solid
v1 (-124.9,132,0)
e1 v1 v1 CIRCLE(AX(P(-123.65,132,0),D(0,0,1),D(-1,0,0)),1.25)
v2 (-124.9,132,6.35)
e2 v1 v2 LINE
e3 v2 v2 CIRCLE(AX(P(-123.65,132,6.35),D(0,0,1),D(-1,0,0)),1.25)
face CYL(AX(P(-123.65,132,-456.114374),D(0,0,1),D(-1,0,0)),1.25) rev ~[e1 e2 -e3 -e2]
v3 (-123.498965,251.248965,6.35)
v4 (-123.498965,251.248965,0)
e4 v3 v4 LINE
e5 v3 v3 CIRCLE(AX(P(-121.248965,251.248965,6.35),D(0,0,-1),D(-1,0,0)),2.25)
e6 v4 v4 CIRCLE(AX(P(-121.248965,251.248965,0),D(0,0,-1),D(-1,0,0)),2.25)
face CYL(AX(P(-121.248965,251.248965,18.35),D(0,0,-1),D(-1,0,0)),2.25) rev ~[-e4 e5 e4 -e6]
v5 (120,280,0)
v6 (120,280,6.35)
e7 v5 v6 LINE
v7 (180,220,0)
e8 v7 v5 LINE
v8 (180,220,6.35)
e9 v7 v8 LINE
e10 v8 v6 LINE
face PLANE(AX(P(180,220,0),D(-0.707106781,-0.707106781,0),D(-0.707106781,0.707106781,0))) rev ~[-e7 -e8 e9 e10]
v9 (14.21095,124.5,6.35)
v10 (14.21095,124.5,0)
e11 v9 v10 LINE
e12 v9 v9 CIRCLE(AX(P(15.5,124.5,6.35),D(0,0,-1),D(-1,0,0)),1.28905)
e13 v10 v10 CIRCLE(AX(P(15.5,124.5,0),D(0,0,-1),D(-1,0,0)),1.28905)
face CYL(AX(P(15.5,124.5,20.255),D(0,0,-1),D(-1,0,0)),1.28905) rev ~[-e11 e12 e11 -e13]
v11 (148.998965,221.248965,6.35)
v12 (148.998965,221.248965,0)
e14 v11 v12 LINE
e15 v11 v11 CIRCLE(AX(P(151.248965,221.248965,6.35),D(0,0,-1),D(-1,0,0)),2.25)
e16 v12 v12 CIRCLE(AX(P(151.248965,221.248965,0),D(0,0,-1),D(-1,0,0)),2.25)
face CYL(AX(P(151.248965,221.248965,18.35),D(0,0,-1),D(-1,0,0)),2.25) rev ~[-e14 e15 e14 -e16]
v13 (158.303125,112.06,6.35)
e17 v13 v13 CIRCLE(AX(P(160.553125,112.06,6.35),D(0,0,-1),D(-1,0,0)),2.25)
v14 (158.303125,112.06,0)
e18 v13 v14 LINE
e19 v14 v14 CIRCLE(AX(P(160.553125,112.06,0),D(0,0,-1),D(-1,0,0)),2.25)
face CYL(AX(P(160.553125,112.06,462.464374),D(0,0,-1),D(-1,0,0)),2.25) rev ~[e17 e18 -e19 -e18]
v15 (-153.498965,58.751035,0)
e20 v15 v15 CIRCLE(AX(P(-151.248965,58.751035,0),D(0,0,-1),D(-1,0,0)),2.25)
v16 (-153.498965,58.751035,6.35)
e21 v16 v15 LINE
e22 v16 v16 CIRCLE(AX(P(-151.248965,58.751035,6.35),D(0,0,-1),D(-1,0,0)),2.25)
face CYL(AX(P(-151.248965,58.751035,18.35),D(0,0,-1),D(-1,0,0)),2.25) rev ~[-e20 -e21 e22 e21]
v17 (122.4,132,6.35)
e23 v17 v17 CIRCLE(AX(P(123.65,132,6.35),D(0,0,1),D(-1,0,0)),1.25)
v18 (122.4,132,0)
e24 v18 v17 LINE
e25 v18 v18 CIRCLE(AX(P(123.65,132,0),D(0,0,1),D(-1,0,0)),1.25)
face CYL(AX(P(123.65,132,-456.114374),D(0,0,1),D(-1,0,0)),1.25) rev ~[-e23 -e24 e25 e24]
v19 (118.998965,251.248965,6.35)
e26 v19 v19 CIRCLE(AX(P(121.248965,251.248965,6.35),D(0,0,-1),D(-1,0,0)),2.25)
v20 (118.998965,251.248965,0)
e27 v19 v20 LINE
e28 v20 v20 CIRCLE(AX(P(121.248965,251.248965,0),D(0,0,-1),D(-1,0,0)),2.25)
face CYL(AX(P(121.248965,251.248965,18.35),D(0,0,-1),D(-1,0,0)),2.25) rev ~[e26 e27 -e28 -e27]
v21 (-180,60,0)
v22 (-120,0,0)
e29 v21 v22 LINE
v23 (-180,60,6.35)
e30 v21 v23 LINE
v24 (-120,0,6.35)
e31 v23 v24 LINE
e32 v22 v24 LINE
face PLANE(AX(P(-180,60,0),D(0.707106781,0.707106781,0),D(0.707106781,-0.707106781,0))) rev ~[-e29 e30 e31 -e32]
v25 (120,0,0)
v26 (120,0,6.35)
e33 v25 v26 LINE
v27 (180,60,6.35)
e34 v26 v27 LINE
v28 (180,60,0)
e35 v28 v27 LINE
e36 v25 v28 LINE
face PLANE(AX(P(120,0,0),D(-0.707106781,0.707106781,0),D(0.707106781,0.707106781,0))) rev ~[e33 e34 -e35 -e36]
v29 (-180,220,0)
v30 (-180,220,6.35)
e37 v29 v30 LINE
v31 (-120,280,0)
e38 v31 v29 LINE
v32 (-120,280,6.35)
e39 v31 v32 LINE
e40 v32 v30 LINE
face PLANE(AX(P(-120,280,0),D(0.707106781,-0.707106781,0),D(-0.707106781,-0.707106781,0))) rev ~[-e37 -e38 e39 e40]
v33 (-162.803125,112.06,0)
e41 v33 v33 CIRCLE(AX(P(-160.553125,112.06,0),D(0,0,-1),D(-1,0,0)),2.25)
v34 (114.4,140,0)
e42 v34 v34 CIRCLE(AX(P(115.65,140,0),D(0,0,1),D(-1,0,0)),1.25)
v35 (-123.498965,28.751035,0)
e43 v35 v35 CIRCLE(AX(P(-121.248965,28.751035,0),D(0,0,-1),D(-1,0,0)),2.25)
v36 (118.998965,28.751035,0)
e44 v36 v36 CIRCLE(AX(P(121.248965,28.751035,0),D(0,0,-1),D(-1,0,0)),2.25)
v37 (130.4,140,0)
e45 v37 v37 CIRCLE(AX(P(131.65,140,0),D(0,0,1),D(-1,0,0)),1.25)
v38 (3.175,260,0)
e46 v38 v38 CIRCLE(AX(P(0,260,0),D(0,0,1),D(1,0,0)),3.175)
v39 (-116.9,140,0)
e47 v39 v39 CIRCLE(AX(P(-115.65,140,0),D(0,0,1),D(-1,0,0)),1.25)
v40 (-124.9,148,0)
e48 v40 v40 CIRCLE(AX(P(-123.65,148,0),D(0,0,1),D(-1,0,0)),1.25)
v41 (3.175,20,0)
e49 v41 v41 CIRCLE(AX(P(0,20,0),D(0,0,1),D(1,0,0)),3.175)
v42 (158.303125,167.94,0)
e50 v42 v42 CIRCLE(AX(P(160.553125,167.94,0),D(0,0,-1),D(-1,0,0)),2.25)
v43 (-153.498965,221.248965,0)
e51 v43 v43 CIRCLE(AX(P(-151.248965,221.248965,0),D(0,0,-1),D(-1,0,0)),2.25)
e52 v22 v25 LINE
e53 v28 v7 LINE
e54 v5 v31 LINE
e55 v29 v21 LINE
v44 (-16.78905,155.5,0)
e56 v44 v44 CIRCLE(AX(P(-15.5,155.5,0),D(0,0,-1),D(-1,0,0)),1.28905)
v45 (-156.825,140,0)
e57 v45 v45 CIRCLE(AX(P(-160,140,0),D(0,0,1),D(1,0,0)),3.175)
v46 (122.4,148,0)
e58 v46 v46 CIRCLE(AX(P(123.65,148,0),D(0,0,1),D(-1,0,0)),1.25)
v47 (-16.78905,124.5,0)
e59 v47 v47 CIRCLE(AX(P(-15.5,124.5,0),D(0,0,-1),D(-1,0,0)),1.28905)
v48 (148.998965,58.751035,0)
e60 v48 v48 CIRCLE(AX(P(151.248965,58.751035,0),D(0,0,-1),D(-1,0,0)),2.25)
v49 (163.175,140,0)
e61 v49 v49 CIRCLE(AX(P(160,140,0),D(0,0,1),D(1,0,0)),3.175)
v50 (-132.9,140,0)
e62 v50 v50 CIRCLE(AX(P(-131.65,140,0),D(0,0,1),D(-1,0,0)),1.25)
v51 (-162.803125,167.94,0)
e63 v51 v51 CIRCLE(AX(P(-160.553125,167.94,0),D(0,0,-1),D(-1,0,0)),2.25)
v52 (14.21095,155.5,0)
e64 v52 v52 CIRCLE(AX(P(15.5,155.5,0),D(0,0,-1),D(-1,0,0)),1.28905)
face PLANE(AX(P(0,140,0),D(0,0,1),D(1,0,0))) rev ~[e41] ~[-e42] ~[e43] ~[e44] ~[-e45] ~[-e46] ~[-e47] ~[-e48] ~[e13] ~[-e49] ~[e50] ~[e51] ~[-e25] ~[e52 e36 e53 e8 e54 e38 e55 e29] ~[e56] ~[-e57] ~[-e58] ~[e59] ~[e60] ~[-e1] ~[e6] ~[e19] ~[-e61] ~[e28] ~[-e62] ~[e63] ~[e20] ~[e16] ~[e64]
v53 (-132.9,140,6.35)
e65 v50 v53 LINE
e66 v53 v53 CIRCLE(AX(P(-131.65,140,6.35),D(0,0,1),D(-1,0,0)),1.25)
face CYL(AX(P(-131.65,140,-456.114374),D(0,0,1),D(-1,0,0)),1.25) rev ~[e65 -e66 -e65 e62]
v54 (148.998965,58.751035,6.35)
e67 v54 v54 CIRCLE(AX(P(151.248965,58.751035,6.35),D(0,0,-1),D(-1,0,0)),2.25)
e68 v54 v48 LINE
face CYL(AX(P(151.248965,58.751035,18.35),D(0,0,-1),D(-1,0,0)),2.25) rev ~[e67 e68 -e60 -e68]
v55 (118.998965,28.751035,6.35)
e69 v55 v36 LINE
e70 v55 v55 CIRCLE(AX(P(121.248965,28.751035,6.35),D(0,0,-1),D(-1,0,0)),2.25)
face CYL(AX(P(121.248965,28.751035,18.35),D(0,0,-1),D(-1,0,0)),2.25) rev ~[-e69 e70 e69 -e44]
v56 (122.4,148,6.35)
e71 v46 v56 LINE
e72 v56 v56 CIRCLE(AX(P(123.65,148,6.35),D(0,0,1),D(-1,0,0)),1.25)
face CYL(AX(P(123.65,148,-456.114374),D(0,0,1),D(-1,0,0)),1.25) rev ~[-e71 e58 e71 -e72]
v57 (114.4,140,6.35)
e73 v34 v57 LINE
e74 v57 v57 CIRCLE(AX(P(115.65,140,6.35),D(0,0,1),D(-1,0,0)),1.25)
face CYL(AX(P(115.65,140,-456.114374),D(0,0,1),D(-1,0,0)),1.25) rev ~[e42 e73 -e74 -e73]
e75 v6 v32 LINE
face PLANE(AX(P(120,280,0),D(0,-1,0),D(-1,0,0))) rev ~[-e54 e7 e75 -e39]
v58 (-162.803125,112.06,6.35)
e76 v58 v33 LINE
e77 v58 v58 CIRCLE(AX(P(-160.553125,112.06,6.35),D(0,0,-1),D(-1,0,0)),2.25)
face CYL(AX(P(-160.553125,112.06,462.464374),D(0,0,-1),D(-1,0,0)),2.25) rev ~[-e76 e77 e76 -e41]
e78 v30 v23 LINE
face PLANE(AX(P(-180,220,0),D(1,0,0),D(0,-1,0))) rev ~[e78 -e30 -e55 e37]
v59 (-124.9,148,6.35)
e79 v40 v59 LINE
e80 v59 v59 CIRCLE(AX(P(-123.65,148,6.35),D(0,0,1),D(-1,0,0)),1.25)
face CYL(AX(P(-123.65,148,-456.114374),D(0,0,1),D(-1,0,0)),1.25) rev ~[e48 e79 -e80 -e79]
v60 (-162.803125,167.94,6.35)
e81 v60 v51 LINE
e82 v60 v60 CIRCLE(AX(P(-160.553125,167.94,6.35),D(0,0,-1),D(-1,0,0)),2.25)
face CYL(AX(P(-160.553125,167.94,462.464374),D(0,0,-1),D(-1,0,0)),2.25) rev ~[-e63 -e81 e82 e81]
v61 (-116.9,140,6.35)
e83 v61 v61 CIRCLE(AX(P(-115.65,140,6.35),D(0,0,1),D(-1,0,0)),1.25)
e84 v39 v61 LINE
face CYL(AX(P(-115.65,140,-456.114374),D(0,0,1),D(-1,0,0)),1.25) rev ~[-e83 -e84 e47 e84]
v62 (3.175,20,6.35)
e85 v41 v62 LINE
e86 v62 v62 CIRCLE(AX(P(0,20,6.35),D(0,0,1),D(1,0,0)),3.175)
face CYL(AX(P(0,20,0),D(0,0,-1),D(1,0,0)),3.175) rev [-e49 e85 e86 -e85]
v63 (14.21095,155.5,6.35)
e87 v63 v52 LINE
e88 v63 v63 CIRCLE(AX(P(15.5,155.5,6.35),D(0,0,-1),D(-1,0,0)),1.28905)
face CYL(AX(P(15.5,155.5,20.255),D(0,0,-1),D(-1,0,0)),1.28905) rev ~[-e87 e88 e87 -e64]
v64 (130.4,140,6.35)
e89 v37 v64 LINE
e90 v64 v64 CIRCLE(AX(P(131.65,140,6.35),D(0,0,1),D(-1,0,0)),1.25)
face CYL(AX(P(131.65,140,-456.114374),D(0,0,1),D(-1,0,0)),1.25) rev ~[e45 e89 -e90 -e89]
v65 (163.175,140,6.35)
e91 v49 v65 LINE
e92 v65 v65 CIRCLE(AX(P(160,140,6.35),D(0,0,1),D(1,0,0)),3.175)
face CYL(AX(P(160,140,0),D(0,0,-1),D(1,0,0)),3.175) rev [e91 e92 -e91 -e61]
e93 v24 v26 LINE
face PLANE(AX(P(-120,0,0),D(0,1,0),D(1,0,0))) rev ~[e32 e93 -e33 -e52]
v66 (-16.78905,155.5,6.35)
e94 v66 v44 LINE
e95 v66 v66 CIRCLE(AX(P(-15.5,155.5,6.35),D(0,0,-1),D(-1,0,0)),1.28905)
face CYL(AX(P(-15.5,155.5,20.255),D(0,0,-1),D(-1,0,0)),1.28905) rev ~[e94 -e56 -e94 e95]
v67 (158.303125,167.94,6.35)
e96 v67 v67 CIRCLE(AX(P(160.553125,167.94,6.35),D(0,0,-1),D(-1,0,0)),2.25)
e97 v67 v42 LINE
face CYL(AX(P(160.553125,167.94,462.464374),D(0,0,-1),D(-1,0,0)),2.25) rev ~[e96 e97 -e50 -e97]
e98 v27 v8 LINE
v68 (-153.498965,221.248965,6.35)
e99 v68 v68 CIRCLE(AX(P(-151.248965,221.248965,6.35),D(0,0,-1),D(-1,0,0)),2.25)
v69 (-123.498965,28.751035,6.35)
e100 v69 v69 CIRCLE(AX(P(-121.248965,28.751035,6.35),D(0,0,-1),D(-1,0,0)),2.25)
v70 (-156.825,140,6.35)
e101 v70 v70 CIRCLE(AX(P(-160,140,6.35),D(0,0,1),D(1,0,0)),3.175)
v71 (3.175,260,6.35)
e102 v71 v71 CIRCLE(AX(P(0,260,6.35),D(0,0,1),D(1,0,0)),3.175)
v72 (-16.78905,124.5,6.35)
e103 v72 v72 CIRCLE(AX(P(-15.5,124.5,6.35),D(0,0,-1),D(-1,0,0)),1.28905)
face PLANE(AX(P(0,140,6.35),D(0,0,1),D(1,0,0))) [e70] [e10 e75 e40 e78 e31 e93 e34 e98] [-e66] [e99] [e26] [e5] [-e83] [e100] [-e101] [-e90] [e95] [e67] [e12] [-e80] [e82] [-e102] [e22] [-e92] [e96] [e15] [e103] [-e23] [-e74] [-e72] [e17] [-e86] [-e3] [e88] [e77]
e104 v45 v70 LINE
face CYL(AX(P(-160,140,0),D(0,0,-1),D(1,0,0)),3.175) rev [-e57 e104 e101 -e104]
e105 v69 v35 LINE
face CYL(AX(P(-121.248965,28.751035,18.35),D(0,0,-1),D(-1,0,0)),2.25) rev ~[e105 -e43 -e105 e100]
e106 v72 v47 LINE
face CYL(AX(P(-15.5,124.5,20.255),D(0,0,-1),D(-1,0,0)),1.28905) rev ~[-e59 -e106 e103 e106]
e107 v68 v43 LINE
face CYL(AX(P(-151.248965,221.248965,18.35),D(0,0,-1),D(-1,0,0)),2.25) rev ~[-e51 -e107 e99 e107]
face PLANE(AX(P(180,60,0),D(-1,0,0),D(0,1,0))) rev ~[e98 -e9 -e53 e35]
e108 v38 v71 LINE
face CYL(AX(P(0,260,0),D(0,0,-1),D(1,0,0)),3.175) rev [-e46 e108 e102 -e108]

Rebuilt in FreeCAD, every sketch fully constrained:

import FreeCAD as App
import Part
import Sketcher
from FreeCAD import Vector
Q = App.Units.Quantity


def add_polygon(sketch, points):
    """Adds a closed chain of lines whose ends are joined by coincident constraints."""
    first, n = sketch.GeometryCount, len(points)
    for a, b in zip(points, points[1:] + points[:1]):
        sketch.addGeometry(Part.LineSegment(App.Vector(*a, 0), App.Vector(*b, 0)), False)
    for i in range(n):
        sketch.addConstraint(Sketcher.Constraint("Coincident", first + i, 2, first + (i + 1) % n, 1))

doc = App.newDocument("Part")
body = doc.addObject("PartDesign::Body", "Body")

# Sketch on XY plane
sketch1 = body.newObject("Sketcher::SketchObject", "Sketch")
sketch1.AttachmentSupport = (doc.getObject("XY_Plane"), [""])
sketch1.MapMode = "FlatFace"
add_polygon(sketch1, [(-180, 60), (-120, 0), (120, 0), (180, 60), (180, 220), (120, 280), (-120, 280), (-180, 220)])  # lines 0-7
sketch1.addGeometry(Part.Circle(Vector(0, 20, 0), Vector(0, 0, 1), 3.2), False)  # 8
sketch1.addGeometry(Part.Circle(Vector(-160, 140, 0), Vector(0, 0, 1), 3.2), False)  # 9
sketch1.addGeometry(Part.Circle(Vector(160, 140, 0), Vector(0, 0, 1), 3.2), False)  # 10
sketch1.addGeometry(Part.Circle(Vector(0, 260, 0), Vector(0, 0, 1), 3.2), False)  # 11
sketch1.addConstraint(Sketcher.Constraint("Horizontal", 1))
sketch1.addConstraint(Sketcher.Constraint("Vertical", 3))
sketch1.addConstraint(Sketcher.Constraint("Horizontal", 5))
sketch1.addConstraint(Sketcher.Constraint("Vertical", 7))
sketch1.addConstraint(Sketcher.Constraint("Equal", 8, 9))
sketch1.addConstraint(Sketcher.Constraint("Equal", 9, 10))
sketch1.addConstraint(Sketcher.Constraint("Equal", 10, 11))
sketch1.addConstraint(Sketcher.Constraint("Symmetric", 0, 2, 1, 2, -1, 1))
sketch1.addConstraint(Sketcher.Constraint("Symmetric", 9, 3, 10, 3, -2))
sketch1.addConstraint(Sketcher.Constraint("Symmetric", 3, 2, 6, 2, -2))
sketch1.addConstraint(Sketcher.Constraint("PointOnObject", 8, 3, -2))
sketch1.addConstraint(Sketcher.Constraint("PointOnObject", 11, 3, -2))
sketch1.addConstraint(Sketcher.Constraint("Perpendicular", 0, 2))
sketch1.addConstraint(Sketcher.Constraint("Perpendicular", 2, 4))
sketch1.addConstraint(Sketcher.Constraint("Perpendicular", 4, 6))
sketch1.addConstraint(Sketcher.Constraint("Horizontal", 2, 2, 7, 2))
sketch1.addConstraint(Sketcher.Constraint("Vertical", 1, 2, 4, 2))
sketch1.addConstraint(Sketcher.Constraint("Diameter", 8, Q("6.35 mm")))
sketch1.addConstraint(Sketcher.Constraint("DistanceX", 1, 1, 1, 2, Q("240 mm")))
sketch1.addConstraint(Sketcher.Constraint("DistanceY", 3, 1, 3, 2, Q("160 mm")))
sketch1.addConstraint(Sketcher.Constraint("DistanceY", -1, 1, 8, 3, Q("20 mm")))
sketch1.addConstraint(Sketcher.Constraint("DistanceX", 9, 3, -1, 1, Q("160 mm")))
sketch1.addConstraint(Sketcher.Constraint("DistanceY", -1, 1, 9, 3, Q("140 mm")))
sketch1.addConstraint(Sketcher.Constraint("DistanceY", -1, 1, 11, 3, Q("260 mm")))
sketch1.addConstraint(Sketcher.Constraint("DistanceX", -1, 1, 2, 2, Q("180 mm")))
pad1 = body.newObject("PartDesign::Pad", "Pad")
pad1.Profile = sketch1
pad1.Length = 6.35

# Sketch on XY plane
sketch2 = body.newObject("Sketcher::SketchObject", "Sketch001")
sketch2.AttachmentSupport = (doc.getObject("XY_Plane"), [""])
sketch2.MapMode = "FlatFace"
sketch2.AttachmentOffset = App.Placement(Vector(0, 0, 6.35), App.Rotation())
sketch2.addGeometry(Part.Circle(Vector(-15.5, 155.5, 0), Vector(0, 0, 1), 1.3), False)
sketch2.addGeometry(Part.Circle(Vector(15.5, 155.5, 0), Vector(0, 0, 1), 1.3), False)
sketch2.addGeometry(Part.Circle(Vector(15.5, 124.5, 0), Vector(0, 0, 1), 1.3), False)
sketch2.addGeometry(Part.Circle(Vector(-15.5, 124.5, 0), Vector(0, 0, 1), 1.3), False)
sketch2.addConstraint(Sketcher.Constraint("Equal", 0, 1))
sketch2.addConstraint(Sketcher.Constraint("Equal", 1, 2))
sketch2.addConstraint(Sketcher.Constraint("Equal", 2, 3))
sketch2.addConstraint(Sketcher.Constraint("Symmetric", 0, 3, 1, 3, -2))
sketch2.addConstraint(Sketcher.Constraint("Symmetric", 2, 3, 3, 3, -2))
sketch2.addConstraint(Sketcher.Constraint("Vertical", 1, 3, 2, 3))
sketch2.addConstraint(Sketcher.Constraint("DistanceX", 0, 3, 1, 3, Q("31 mm")))
sketch2.addConstraint(Sketcher.Constraint("DistanceY", 2, 3, 1, 3, Q("31 mm")))
sketch2.addConstraint(Sketcher.Constraint("Diameter", 0, Q("2.5781 mm")))
sketch2.addConstraint(Sketcher.Constraint("DistanceY", -1, 1, 0, 3, Q("155.5 mm")))
doc.recompute()
hole = body.newObject("PartDesign::Hole", "Hole")
hole.Profile = sketch2
hole.ThreadType = "None"
hole.Diameter = 2.5781
hole.DepthType = "Dimension"
hole.Depth = 13.905
hole.DrillPoint = "Angled"
hole.DrillPointAngle = 118

# Sketch on XY plane
sketch3 = body.newObject("Sketcher::SketchObject", "Sketch002")
sketch3.AttachmentSupport = (doc.getObject("XY_Plane"), [""])
sketch3.MapMode = "FlatFace"
sketch3.AttachmentOffset = App.Placement(Vector(0, 0, 6.35), App.Rotation())
sketch3.addGeometry(Part.Circle(Vector(-160.6, 167.9, 0), Vector(0, 0, 1), 2.2), False)
sketch3.addGeometry(Part.Circle(Vector(-160.6, 112.1, 0), Vector(0, 0, 1), 2.2), False)
sketch3.addGeometry(Part.Circle(Vector(160.6, 112.1, 0), Vector(0, 0, 1), 2.2), False)
sketch3.addGeometry(Part.Circle(Vector(160.6, 167.9, 0), Vector(0, 0, 1), 2.2), False)
sketch3.addConstraint(Sketcher.Constraint("Equal", 0, 1))
sketch3.addConstraint(Sketcher.Constraint("Equal", 1, 2))
sketch3.addConstraint(Sketcher.Constraint("Equal", 2, 3))
sketch3.addConstraint(Sketcher.Constraint("Symmetric", 1, 3, 2, 3, -2))
sketch3.addConstraint(Sketcher.Constraint("Symmetric", 0, 3, 3, 3, -2))
sketch3.addConstraint(Sketcher.Constraint("Vertical", 0, 3, 1, 3))
sketch3.addConstraint(Sketcher.Constraint("Diameter", 0, Q("4.5 mm")))
sketch3.addConstraint(Sketcher.Constraint("DistanceY", -1, 1, 0, 3, Q("167.94 mm")))
sketch3.addConstraint(Sketcher.Constraint("DistanceY", -1, 1, 1, 3, Q("112.06 mm")))
sketch3.addConstraint(Sketcher.Constraint("DistanceX", 1, 3, 2, 3, Q("321.10625 mm")))
doc.recompute()
hole2 = body.newObject("PartDesign::Hole", "Hole001")
hole2.Profile = sketch3
hole2.ThreadType = "None"
hole2.Diameter = 4.5
hole2.DepthType = "ThroughAll"

# Sketch on XY plane
sketch4 = body.newObject("Sketcher::SketchObject", "Sketch003")
sketch4.AttachmentSupport = (doc.getObject("XY_Plane"), [""])
sketch4.MapMode = "FlatFace"
sketch4.AttachmentOffset = App.Placement(Vector(0, 0, 6.35), App.Rotation())
sketch4.addGeometry(Part.Circle(Vector(-151.2, 221.2, 0), Vector(0, 0, 1), 2.2), False)
sketch4.addGeometry(Part.Circle(Vector(-121.2, 251.2, 0), Vector(0, 0, 1), 2.2), False)
sketch4.addConstraint(Sketcher.Constraint("Equal", 0, 1))
sketch4.addConstraint(Sketcher.Constraint("Diameter", 0, Q("4.5 mm")))
sketch4.addConstraint(Sketcher.Constraint("DistanceX", 0, 3, 1, 3, Q("30 mm")))
sketch4.addConstraint(Sketcher.Constraint("DistanceY", 0, 3, 1, 3, Q("30 mm")))
sketch4.addConstraint(Sketcher.Constraint("DistanceX", 0, 3, -1, 1, Q("151.248965 mm")))
sketch4.addConstraint(Sketcher.Constraint("DistanceY", -1, 1, 0, 3, Q("221.248965 mm")))
doc.recompute()
hole3 = body.newObject("PartDesign::Hole", "Hole002")
hole3.Profile = sketch4
hole3.ThreadType = "None"
hole3.Diameter = 4.5
hole3.DepthType = "Dimension"
hole3.Depth = 12
hole3.DrillPoint = "Angled"
hole3.DrillPointAngle = 118

# Sketch on XY plane
sketch5 = body.newObject("Sketcher::SketchObject", "Sketch004")
sketch5.AttachmentSupport = (doc.getObject("XY_Plane"), [""])
sketch5.MapMode = "FlatFace"
sketch5.AttachmentOffset = App.Placement(Vector(0, 0, 6.35), App.Rotation())
sketch5.addGeometry(Part.Circle(Vector(121.2, 251.2, 0), Vector(0, 0, 1), 2.2), False)
sketch5.addGeometry(Part.Circle(Vector(151.2, 221.2, 0), Vector(0, 0, 1), 2.2), False)
sketch5.addGeometry(Part.Circle(Vector(-151.2, 58.8, 0), Vector(0, 0, 1), 2.2), False)
sketch5.addGeometry(Part.Circle(Vector(-121.2, 28.8, 0), Vector(0, 0, 1), 2.2), False)
sketch5.addGeometry(Part.Circle(Vector(121.2, 28.8, 0), Vector(0, 0, 1), 2.2), False)
sketch5.addGeometry(Part.Circle(Vector(151.2, 58.8, 0), Vector(0, 0, 1), 2.2), False)
sketch5.addConstraint(Sketcher.Constraint("Equal", 0, 1))
sketch5.addConstraint(Sketcher.Constraint("Equal", 1, 2))
sketch5.addConstraint(Sketcher.Constraint("Equal", 2, 3))
sketch5.addConstraint(Sketcher.Constraint("Equal", 3, 4))
sketch5.addConstraint(Sketcher.Constraint("Equal", 4, 5))
sketch5.addConstraint(Sketcher.Constraint("Symmetric", 3, 3, 4, 3, -2))
sketch5.addConstraint(Sketcher.Constraint("Symmetric", 2, 3, 5, 3, -2))
sketch5.addConstraint(Sketcher.Constraint("Vertical", 0, 3, 4, 3))
sketch5.addConstraint(Sketcher.Constraint("Vertical", 1, 3, 5, 3))
sketch5.addConstraint(Sketcher.Constraint("Diameter", 0, Q("4.5 mm")))
sketch5.addConstraint(Sketcher.Constraint("DistanceX", 0, 3, 1, 3, Q("30 mm")))
sketch5.addConstraint(Sketcher.Constraint("DistanceY", 1, 3, 0, 3, Q("30 mm")))
sketch5.addConstraint(Sketcher.Constraint("DistanceY", 3, 3, 2, 3, Q("30 mm")))
sketch5.addConstraint(Sketcher.Constraint("DistanceX", 2, 3, 0, 3, Q("272.49793 mm")))
sketch5.addConstraint(Sketcher.Constraint("DistanceY", 2, 3, 0, 3, Q("192.49793 mm")))
sketch5.addConstraint(Sketcher.Constraint("DistanceY", -1, 1, 0, 3, Q("251.248965 mm")))
doc.recompute()
hole4 = body.newObject("PartDesign::Hole", "Hole003")
hole4.Profile = sketch5
hole4.ThreadType = "None"
hole4.Diameter = 4.5
hole4.DepthType = "Dimension"
hole4.Depth = 12
hole4.DrillPoint = "Angled"
hole4.DrillPointAngle = 118

# Sketch on XY plane
sketch6 = body.newObject("Sketcher::SketchObject", "Sketch005")
sketch6.AttachmentSupport = (doc.getObject("XY_Plane"), [""])
sketch6.MapMode = "FlatFace"
sketch6.addGeometry(Part.Circle(Vector(-123.7, 148, 0), Vector(0, 0, 1), 1.2), False)
sketch6.addGeometry(Part.Circle(Vector(-115.7, 140, 0), Vector(0, 0, 1), 1.2), False)
sketch6.addGeometry(Part.Circle(Vector(-123.7, 132, 0), Vector(0, 0, 1), 1.2), False)
sketch6.addGeometry(Part.Circle(Vector(-131.7, 140, 0), Vector(0, 0, 1), 1.2), False)
sketch6.addGeometry(Part.Circle(Vector(123.7, 148, 0), Vector(0, 0, 1), 1.2), False)
sketch6.addGeometry(Part.Circle(Vector(131.7, 140, 0), Vector(0, 0, 1), 1.2), False)
sketch6.addGeometry(Part.Circle(Vector(115.7, 140, 0), Vector(0, 0, 1), 1.2), False)
sketch6.addGeometry(Part.Circle(Vector(123.7, 132, 0), Vector(0, 0, 1), 1.2), False)
sketch6.addConstraint(Sketcher.Constraint("Equal", 0, 1))
sketch6.addConstraint(Sketcher.Constraint("Equal", 1, 2))
sketch6.addConstraint(Sketcher.Constraint("Equal", 2, 3))
sketch6.addConstraint(Sketcher.Constraint("Equal", 3, 4))
sketch6.addConstraint(Sketcher.Constraint("Equal", 4, 5))
sketch6.addConstraint(Sketcher.Constraint("Equal", 5, 6))
sketch6.addConstraint(Sketcher.Constraint("Equal", 6, 7))
sketch6.addConstraint(Sketcher.Constraint("Symmetric", 0, 3, 4, 3, -2))
sketch6.addConstraint(Sketcher.Constraint("Symmetric", 3, 3, 5, 3, -2))
sketch6.addConstraint(Sketcher.Constraint("Symmetric", 1, 3, 6, 3, -2))
sketch6.addConstraint(Sketcher.Constraint("Symmetric", 2, 3, 7, 3, -2))
sketch6.addConstraint(Sketcher.Constraint("Horizontal", 1, 3, 3, 3))
sketch6.addConstraint(Sketcher.Constraint("Vertical", 0, 3, 2, 3))
sketch6.addConstraint(Sketcher.Constraint("Diameter", 0, Q("2.5 mm")))
sketch6.addConstraint(Sketcher.Constraint("DistanceY", -1, 1, 0, 3, Q("148 mm")))
sketch6.addConstraint(Sketcher.Constraint("DistanceY", -1, 1, 1, 3, Q("140 mm")))
sketch6.addConstraint(Sketcher.Constraint("DistanceY", -1, 1, 2, 3, Q("132 mm")))
sketch6.addConstraint(Sketcher.Constraint("DistanceX", 0, 3, 1, 3, Q("8 mm")))
sketch6.addConstraint(Sketcher.Constraint("DistanceX", 3, 3, 0, 3, Q("8 mm")))
sketch6.addConstraint(Sketcher.Constraint("DistanceX", 1, 3, 4, 3, Q("239.3 mm")))
doc.recompute()
hole5 = body.newObject("PartDesign::Hole", "Hole004")
hole5.Profile = sketch6
hole5.ThreadType = "None"
hole5.Diameter = 2.5
hole5.DepthType = "ThroughAll"
hole5.Reversed = True

doc.recompute()
